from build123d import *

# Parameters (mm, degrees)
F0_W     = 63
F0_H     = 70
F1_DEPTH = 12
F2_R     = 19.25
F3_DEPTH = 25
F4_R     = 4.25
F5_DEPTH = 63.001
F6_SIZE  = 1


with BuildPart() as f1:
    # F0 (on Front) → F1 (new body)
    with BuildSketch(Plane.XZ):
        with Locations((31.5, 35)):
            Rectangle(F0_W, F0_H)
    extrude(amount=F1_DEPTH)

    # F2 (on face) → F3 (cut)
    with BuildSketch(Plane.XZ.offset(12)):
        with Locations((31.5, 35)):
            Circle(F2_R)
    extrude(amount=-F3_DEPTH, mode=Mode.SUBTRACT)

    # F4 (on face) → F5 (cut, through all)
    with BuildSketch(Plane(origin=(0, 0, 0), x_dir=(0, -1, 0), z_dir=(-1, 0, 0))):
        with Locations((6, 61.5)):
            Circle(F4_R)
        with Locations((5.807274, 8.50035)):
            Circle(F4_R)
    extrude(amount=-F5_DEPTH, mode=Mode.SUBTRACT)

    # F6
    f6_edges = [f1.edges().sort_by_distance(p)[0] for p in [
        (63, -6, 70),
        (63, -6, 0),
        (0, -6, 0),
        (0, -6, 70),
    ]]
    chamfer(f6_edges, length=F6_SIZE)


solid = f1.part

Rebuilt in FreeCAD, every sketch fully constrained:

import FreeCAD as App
import Part
import Sketcher
from FreeCAD import Vector


def edges_at(feature, points):
    """Names of the edges that pass closest to the given points."""
    edges = feature.Shape.Edges
    near = lambda p: min(range(len(edges)), key=lambda i: edges[i].distToShape(Part.Vertex(*p))[0])
    return sorted({f"Edge{near(p) + 1}" for p in points})


def add_polygon(sketch, points):
    """Adds a closed chain of lines whose ends are joined by coincident constraints."""
    first, n = sketch.GeometryCount, len(points)
    for a, b in zip(points, points[1:] + points[:1]):
        sketch.addGeometry(Part.LineSegment(App.Vector(*a, 0), App.Vector(*b, 0)), False)
    for i in range(n):
        sketch.addConstraint(Sketcher.Constraint("Coincident", first + i, 2, first + (i + 1) % n, 1))

doc = App.newDocument("Part")
body = doc.addObject("PartDesign::Body", "Body")

sketch1 = doc.addObject("Sketcher::SketchObject", "Sketch")
body.addObject(sketch1)
sketch1.AttachmentSupport = (doc.XZ_Plane, [""])
sketch1.MapMode = "FlatFace"
add_polygon(sketch1, [(0, 70), (0, 0), (63, 0), (63, 70)])
sketch1.addConstraint(Sketcher.Constraint("Vertical", 0))
sketch1.addConstraint(Sketcher.Constraint("Horizontal", 1))
sketch1.addConstraint(Sketcher.Constraint("Vertical", 2))
sketch1.addConstraint(Sketcher.Constraint("Horizontal", 3))
sketch1.addConstraint(Sketcher.Constraint("Coincident", 0, 2, -1, 1))
sketch1.addConstraint(Sketcher.Constraint("DistanceX", 1, 1, 1, 2, 63.0))
sketch1.addConstraint(Sketcher.Constraint("DistanceY", 0, 2, 0, 1, 70.0))
pad1 = doc.addObject("PartDesign::Pad", "Pad")
body.addObject(pad1)
pad1.Profile = sketch1
pad1.Length = 12

sketch2 = doc.addObject("Sketcher::SketchObject", "Sketch001")
body.addObject(sketch2)
sketch2.AttachmentSupport = (doc.XZ_Plane, [""])
sketch2.MapMode = "FlatFace"
sketch2.AttachmentOffset = App.Placement(Vector(0, 0, 12), App.Rotation())
sketch2.addGeometry(Part.Circle(Vector(32, 35, 0), Vector(0, 0, 1), 19), False)
sketch2.addConstraint(Sketcher.Constraint("Diameter", 0, 38.5))
sketch2.addConstraint(Sketcher.Constraint("DistanceY", -1, 1, 0, 3, 35.0))
sketch2.addConstraint(Sketcher.Constraint("DistanceX", -1, 1, 0, 3, 31.5))
pocket1 = doc.addObject("PartDesign::Pocket", "Pocket")
body.addObject(pocket1)
pocket1.Profile = sketch2
pocket1.Length = 25

sketch3 = doc.addObject("Sketcher::SketchObject", "Sketch002")
body.addObject(sketch3)
sketch3.AttachmentSupport = (doc.YZ_Plane, [""])
sketch3.MapMode = "FlatFace"
sketch3.addGeometry(Part.Circle(Vector(-6, 61.5, 0), Vector(0, 0, 1), 4.2), False)
sketch3.addGeometry(Part.Circle(Vector(-5.8, 8.5, 0), Vector(0, 0, 1), 4.2), False)
sketch3.addConstraint(Sketcher.Constraint("Equal", 0, 1))
sketch3.addConstraint(Sketcher.Constraint("Diameter", 0, 8.5))
sketch3.addConstraint(Sketcher.Constraint("DistanceX", 0, 3, -1, 1, 6.0))
sketch3.addConstraint(Sketcher.Constraint("DistanceY", -1, 1, 0, 3, 61.5))
sketch3.addConstraint(Sketcher.Constraint("DistanceY", -1, 1, 1, 3, 8.50035))
sketch3.addConstraint(Sketcher.Constraint("DistanceX", 1, 3, -1, 1, 5.807274))
pocket2 = doc.addObject("PartDesign::Pocket", "Pocket001")
body.addObject(pocket2)
pocket2.Profile = sketch3
pocket2.Type = "ThroughAll"
pocket2.Reversed = True
doc.recompute()

chamfer = doc.addObject("PartDesign::Chamfer", "Chamfer")
body.addObject(chamfer)
chamfer.Base = (pocket2, edges_at(pocket2, [
    (63, -6, 70),
    (63, -6, 0),
    (0, -6, 0),
    (0, -6, 70),
]))
chamfer.Size = 1

doc.recompute()
